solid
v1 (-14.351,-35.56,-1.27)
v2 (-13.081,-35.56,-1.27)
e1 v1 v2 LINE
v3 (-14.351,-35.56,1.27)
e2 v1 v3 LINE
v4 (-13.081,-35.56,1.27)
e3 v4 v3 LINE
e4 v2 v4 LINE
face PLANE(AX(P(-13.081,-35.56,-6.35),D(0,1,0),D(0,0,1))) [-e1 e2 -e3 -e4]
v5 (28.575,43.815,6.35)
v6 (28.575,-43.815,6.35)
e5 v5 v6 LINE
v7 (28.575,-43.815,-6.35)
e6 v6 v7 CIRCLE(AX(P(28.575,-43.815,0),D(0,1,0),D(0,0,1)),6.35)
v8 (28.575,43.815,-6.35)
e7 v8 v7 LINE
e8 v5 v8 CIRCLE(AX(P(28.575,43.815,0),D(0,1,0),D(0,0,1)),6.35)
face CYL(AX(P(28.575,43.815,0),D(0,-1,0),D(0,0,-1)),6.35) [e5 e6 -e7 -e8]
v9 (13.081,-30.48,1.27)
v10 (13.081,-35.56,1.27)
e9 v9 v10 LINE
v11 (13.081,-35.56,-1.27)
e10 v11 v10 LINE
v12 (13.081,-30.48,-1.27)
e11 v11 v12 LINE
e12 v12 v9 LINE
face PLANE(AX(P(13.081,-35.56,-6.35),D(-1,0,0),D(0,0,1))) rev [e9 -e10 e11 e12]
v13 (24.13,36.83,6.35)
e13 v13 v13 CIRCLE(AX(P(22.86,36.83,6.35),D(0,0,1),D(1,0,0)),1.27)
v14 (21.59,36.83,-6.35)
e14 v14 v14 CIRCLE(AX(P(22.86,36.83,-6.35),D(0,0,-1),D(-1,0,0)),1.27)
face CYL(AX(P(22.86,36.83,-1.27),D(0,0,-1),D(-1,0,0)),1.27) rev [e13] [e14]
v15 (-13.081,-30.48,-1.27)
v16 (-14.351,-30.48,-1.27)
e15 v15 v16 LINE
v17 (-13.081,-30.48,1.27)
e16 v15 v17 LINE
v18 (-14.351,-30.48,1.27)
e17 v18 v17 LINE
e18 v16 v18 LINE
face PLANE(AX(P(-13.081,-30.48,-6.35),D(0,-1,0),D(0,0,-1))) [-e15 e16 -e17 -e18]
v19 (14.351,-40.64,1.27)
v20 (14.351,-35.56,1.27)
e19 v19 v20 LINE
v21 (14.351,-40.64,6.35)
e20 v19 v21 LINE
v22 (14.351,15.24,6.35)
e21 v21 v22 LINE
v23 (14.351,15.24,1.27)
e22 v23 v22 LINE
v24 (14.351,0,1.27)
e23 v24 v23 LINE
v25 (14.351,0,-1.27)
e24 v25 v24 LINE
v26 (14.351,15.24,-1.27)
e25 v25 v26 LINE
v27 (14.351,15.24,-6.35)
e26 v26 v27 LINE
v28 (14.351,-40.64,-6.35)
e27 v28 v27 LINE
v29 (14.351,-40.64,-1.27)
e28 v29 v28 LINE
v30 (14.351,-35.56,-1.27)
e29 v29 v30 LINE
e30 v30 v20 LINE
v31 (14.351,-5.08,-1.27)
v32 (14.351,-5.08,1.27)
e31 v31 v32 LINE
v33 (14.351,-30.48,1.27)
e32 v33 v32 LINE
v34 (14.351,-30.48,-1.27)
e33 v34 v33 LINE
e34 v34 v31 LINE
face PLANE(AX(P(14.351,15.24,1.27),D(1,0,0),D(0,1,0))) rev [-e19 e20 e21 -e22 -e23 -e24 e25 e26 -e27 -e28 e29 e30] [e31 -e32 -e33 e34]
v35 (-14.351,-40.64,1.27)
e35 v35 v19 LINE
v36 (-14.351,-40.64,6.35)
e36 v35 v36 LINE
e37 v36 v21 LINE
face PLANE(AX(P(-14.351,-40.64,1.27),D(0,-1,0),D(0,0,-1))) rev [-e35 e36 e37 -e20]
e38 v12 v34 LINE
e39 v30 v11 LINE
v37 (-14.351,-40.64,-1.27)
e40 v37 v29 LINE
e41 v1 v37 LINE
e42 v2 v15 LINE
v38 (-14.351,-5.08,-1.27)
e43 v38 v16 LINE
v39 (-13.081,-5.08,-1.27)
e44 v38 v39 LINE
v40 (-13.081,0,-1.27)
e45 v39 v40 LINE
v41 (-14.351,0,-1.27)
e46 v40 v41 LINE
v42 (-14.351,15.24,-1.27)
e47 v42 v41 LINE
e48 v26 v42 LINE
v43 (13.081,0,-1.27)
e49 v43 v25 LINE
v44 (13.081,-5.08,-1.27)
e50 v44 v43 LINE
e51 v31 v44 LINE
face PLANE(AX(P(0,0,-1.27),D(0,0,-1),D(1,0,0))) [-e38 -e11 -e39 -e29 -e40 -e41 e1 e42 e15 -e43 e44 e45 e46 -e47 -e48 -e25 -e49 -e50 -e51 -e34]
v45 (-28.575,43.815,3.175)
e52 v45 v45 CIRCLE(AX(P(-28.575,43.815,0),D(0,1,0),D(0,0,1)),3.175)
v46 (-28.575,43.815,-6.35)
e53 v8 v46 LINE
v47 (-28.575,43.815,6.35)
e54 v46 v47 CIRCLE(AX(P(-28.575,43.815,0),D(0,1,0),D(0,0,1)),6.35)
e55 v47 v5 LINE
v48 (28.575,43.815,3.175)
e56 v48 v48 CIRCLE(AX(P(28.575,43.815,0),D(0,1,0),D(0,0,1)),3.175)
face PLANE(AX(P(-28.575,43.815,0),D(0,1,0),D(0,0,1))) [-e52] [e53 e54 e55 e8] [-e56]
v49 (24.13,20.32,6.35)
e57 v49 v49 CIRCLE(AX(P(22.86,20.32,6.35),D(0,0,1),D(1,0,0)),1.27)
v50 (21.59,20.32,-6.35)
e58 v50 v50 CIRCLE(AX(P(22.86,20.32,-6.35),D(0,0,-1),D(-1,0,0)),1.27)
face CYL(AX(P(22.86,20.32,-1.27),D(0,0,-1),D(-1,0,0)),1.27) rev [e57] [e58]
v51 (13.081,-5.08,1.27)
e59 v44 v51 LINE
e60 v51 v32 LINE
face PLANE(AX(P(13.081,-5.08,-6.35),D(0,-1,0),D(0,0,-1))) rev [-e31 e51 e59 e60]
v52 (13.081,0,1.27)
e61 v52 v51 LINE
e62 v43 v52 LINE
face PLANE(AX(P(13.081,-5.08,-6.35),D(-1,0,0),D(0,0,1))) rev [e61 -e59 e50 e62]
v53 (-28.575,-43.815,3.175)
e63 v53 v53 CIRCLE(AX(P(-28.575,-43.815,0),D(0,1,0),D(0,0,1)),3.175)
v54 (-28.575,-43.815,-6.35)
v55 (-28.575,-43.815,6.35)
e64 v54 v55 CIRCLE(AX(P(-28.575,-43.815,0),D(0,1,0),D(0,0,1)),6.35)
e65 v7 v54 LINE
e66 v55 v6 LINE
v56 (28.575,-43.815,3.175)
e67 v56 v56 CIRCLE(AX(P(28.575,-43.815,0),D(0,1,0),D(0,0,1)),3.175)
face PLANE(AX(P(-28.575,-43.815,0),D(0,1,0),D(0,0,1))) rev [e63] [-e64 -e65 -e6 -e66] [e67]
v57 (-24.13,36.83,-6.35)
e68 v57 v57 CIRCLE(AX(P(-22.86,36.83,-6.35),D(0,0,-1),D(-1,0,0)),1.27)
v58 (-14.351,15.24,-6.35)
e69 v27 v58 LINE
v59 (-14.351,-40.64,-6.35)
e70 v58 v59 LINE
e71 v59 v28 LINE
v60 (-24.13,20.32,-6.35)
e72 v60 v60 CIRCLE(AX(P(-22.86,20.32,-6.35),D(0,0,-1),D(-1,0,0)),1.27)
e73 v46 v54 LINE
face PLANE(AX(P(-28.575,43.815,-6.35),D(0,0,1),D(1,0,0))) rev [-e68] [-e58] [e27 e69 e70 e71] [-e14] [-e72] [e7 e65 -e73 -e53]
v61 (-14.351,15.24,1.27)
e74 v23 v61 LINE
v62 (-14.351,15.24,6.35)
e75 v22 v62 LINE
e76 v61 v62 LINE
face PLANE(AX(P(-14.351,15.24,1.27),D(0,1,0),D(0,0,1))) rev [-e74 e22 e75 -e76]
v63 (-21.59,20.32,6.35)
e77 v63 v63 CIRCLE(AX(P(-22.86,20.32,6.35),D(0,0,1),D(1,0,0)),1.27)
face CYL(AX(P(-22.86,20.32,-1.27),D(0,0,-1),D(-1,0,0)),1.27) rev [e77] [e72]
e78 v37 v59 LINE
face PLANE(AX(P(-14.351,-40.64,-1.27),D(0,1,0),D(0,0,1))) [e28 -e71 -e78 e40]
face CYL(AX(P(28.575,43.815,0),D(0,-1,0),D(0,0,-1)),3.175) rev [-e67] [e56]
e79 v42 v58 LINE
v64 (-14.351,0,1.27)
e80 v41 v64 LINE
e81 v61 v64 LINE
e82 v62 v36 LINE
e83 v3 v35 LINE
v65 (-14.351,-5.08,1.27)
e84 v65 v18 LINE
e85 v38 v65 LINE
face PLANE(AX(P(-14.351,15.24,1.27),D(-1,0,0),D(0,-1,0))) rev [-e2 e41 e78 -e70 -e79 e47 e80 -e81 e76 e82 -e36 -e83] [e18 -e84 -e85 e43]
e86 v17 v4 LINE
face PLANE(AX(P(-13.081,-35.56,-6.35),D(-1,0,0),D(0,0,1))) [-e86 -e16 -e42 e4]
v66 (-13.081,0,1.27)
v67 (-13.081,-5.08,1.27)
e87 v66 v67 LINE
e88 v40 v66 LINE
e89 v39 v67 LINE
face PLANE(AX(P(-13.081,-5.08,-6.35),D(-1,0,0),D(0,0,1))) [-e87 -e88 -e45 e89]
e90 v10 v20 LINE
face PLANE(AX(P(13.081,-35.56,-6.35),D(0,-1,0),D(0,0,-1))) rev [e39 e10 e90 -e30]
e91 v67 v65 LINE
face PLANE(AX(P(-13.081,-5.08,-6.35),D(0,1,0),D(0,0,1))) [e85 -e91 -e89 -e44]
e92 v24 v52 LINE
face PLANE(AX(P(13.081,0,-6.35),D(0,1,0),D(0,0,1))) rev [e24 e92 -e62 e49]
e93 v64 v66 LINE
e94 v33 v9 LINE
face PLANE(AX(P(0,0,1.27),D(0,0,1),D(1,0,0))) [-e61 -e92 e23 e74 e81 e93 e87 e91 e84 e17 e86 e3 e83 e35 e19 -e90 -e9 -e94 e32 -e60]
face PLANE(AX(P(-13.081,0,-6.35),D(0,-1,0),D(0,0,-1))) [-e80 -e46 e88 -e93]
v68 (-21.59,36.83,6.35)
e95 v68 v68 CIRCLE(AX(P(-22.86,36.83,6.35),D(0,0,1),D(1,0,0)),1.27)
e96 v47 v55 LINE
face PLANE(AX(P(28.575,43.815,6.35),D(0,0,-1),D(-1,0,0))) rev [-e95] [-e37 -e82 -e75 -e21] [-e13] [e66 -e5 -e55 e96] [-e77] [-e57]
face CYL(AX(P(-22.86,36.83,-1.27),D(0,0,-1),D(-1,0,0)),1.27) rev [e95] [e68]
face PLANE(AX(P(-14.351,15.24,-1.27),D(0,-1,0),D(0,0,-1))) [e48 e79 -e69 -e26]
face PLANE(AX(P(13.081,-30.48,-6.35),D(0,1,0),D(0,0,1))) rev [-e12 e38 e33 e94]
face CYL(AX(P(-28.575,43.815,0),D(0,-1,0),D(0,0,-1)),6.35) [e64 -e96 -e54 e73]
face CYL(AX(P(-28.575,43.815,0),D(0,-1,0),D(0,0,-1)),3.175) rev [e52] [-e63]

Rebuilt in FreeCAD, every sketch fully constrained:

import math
import FreeCAD as App
import Part
import Sketcher

V = App.Vector
Q = App.Units.Quantity


def add_polygon(sketch, points):
    """Adds a closed chain of lines whose ends are joined by coincident constraints."""
    first, n = sketch.GeometryCount, len(points)
    for a, b in zip(points, points[1:] + points[:1]):
        sketch.addGeometry(Part.LineSegment(App.Vector(*a, 0), App.Vector(*b, 0)), False)
    for i in range(n):
        sketch.addConstraint(Sketcher.Constraint("Coincident", first + i, 2, first + (i + 1) % n, 1))

doc = App.newDocument("Part")
body = doc.addObject("PartDesign::Body", "Body")

# Sketch on XZ plane
sketch1 = doc.addObject("Sketcher::SketchObject", "Sketch")
body.addObject(sketch1)
sketch1.AttachmentSupport = (doc.XZ_Plane, [""])
sketch1.MapMode = "FlatFace"
sketch1.addGeometry([
    Part.LineSegment(V(28.6, -6.3, 0), V(-28.6, -6.3, 0)),  # 0
    Part.ArcOfCircle(Part.Circle(V(-28.6, 0, 0), V(0, 0, 1), 6.3), math.radians(90), math.radians(270)),  # 1
    Part.LineSegment(V(-28.6, 6.3, 0), V(28.6, 6.3, 0)),  # 2
    Part.ArcOfCircle(Part.Circle(V(28.6, 0, 0), V(0, 0, 1), 6.3), math.radians(-90), math.radians(90)),  # 3
    Part.Circle(V(28.6, 0, 0), V(0, 0, 1), 3.2),  # 4
    Part.Circle(V(-28.6, 0, 0), V(0, 0, 1), 3.2),  # 5
], False)
sketch1.addConstraint([
    Sketcher.Constraint("Tangent", 0, 2, 1, 2),
    Sketcher.Constraint("Tangent", 1, 1, 2, 1),
    Sketcher.Constraint("Tangent", 2, 2, 3, 2),
    Sketcher.Constraint("Tangent", 3, 1, 0, 1),
    Sketcher.Constraint("Horizontal", 0),
    Sketcher.Constraint("Horizontal", 2),
    Sketcher.Constraint("Coincident", 4, 3, 3, 3),
    Sketcher.Constraint("Coincident", 5, 3, 1, 3),
    Sketcher.Constraint("Equal", 4, 5),
    Sketcher.Constraint("Symmetric", 1, 3, 3, 3, -1, 1),
    Sketcher.Constraint("Diameter", 4, Q("0.25 in")),
    Sketcher.Constraint("Radius", 1, Q("0.25 in")),
    Sketcher.Constraint("DistanceX", 0, 2, 0, 1, Q("2.25 in")),
])
pad1 = doc.addObject("PartDesign::Pad", "Pad")
body.addObject(pad1)
pad1.Profile = sketch1
pad1.Length = Q("3.45 in")
pad1.Midplane = True

# Sketch on XY plane
sketch2 = doc.addObject("Sketcher::SketchObject", "Sketch001")
body.addObject(sketch2)
sketch2.AttachmentSupport = (doc.XY_Plane, [""])
sketch2.MapMode = "FlatFace"
sketch2.AttachmentOffset = App.Placement(V(0, 0, -0.25 * 25.4), App.Rotation())
sketch2.addGeometry([
    Part.Circle(V(-22.9, 36.8, 0), V(0, 0, 1), 1.3),
    Part.Circle(V(-22.9, 20.3, 0), V(0, 0, 1), 1.3),
    Part.Circle(V(22.9, 36.8, 0), V(0, 0, 1), 1.3),
    Part.Circle(V(22.9, 20.3, 0), V(0, 0, 1), 1.3),
], False)
sketch2.addConstraint([
    Sketcher.Constraint("Equal", 0, 1),
    Sketcher.Constraint("Equal", 1, 2),
    Sketcher.Constraint("Equal", 2, 3),
    Sketcher.Constraint("Symmetric", 0, 3, 2, 3, -2),
    Sketcher.Constraint("Symmetric", 1, 3, 3, 3, -2),
    Sketcher.Constraint("Vertical", 0, 3, 1, 3),
    Sketcher.Constraint("Diameter", 0, Q("0.1 in")),
    Sketcher.Constraint("DistanceX", 0, 3, -1, 1, Q("0.9 in")),
    Sketcher.Constraint("DistanceY", -1, 1, 1, 3, Q("0.8 in")),
    Sketcher.Constraint("DistanceY", -1, 1, 0, 3, Q("1.45 in")),
])
pocket1 = doc.addObject("PartDesign::Pocket", "Pocket")
body.addObject(pocket1)
pocket1.Profile = sketch2
pocket1.Length = Q("0.2 in")
pocket1.Reversed = True

# Sketch on XY plane
sketch3 = doc.addObject("Sketcher::SketchObject", "Sketch002")
body.addObject(sketch3)
sketch3.AttachmentSupport = (doc.XY_Plane, [""])
sketch3.MapMode = "FlatFace"
sketch3.AttachmentOffset = App.Placement(V(0, 0, 0.25 * 25.4), App.Rotation())
sketch3.addGeometry([
    Part.Circle(V(22.9, 36.8, 0), V(0, 0, 1), 1.3),
    Part.Circle(V(22.9, 20.3, 0), V(0, 0, 1), 1.3),
    Part.Circle(V(-22.9, 36.8, 0), V(0, 0, 1), 1.3),
    Part.Circle(V(-22.9, 20.3, 0), V(0, 0, 1), 1.3),
], False)
sketch3.addConstraint([
    Sketcher.Constraint("Equal", 0, 1),
    Sketcher.Constraint("Equal", 1, 2),
    Sketcher.Constraint("Equal", 2, 3),
    Sketcher.Constraint("Symmetric", 0, 3, 2, 3, -2),
    Sketcher.Constraint("Symmetric", 1, 3, 3, 3, -2),
    Sketcher.Constraint("Vertical", 0, 3, 1, 3),
    Sketcher.Constraint("Diameter", 0, Q("0.1 in")),
    Sketcher.Constraint("DistanceX", -1, 1, 0, 3, Q("0.9 in")),
    Sketcher.Constraint("DistanceY", -1, 1, 1, 3, Q("0.8 in")),
    Sketcher.Constraint("DistanceY", -1, 1, 0, 3, Q("1.45 in")),
])
pocket2 = doc.addObject("PartDesign::Pocket", "Pocket001")
body.addObject(pocket2)
pocket2.Profile = sketch3
pocket2.Type = "ThroughAll"

# Sketch on XY plane
sketch4 = doc.addObject("Sketcher::SketchObject", "Sketch003")
body.addObject(sketch4)
sketch4.AttachmentSupport = (doc.XY_Plane, [""])
sketch4.MapMode = "FlatFace"
sketch4.AttachmentOffset = App.Placement(V(0, 0, 0.25 * 25.4), App.Rotation())
add_polygon(sketch4, [(-14, 15), (-14, -41), (14, -41), (14, 15)])  # lines 0-3
sketch4.addConstraint([
    Sketcher.Constraint("Vertical", 0),
    Sketcher.Constraint("Horizontal", 1),
    Sketcher.Constraint("Vertical", 2),
    Sketcher.Constraint("Horizontal", 3),
    Sketcher.Constraint("DistanceY", 0, 2, 0, 1, Q("2.2 in")),
    Sketcher.Constraint("DistanceX", 1, 1, 1, 2, Q("1.13 in")),
    Sketcher.Constraint("DistanceY", 0, 2, -1, 1, Q("1.6 in")),
    Sketcher.Constraint("DistanceX", 0, 2, -1, 1, Q("0.565 in")),
])
pocket3 = doc.addObject("PartDesign::Pocket", "Pocket002")
body.addObject(pocket3)
pocket3.Profile = sketch4
pocket3.Length = Q("0.2 in")
doc.recompute()

mirrored = doc.addObject("PartDesign::Mirrored", "Mirrored")
body.addObject(mirrored)
mirrored.Originals = [pocket3]
mirrored.MirrorPlane = (doc.XY_Plane, [""])
body.Tip = mirrored

# Sketch on XY plane
sketch5 = doc.addObject("Sketcher::SketchObject", "Sketch004")
body.addObject(sketch5)
sketch5.AttachmentSupport = (doc.XY_Plane, [""])
sketch5.MapMode = "FlatFace"
sketch5.AttachmentOffset = App.Placement(V(0, 0, 0.05 * 25.4), App.Rotation())
add_polygon(sketch5, [(13.1, -30.5), (13.1, -35.6), (14.4, -35.6), (14.4, -30.5)])  # lines 0-3
add_polygon(sketch5, [(13.1, 0), (13.1, -5.1), (14.4, -5.1), (14.4, 0)])  # lines 4-7
sketch5.addConstraint([
    Sketcher.Constraint("Vertical", 0),
    Sketcher.Constraint("Horizontal", 1),
    Sketcher.Constraint("Vertical", 2),
    Sketcher.Constraint("Horizontal", 3),
    Sketcher.Constraint("Vertical", 4),
    Sketcher.Constraint("Horizontal", 5),
    Sketcher.Constraint("Vertical", 6),
    Sketcher.Constraint("Horizontal", 7),
    Sketcher.Constraint("PointOnObject", 6, 2, -1),
    Sketcher.Constraint("Vertical", 3, 2, 4, 2),
    Sketcher.Constraint("Vertical", 2, 2, 5, 2),
    Sketcher.Constraint("Equal", 2, 4),
    Sketcher.Constraint("DistanceY", 0, 2, 0, 1, Q("0.2 in")),
    Sketcher.Constraint("DistanceY", 3, 2, 4, 2, Q("1 in")),
    Sketcher.Constraint("DistanceX", 1, 1, 1, 2, Q("0.05 in")),
    Sketcher.Constraint("DistanceX", -1, 1, 0, 2, Q("0.515 in")),
])
pocket4 = doc.addObject("PartDesign::Pocket", "Pocket003")
body.addObject(pocket4)
pocket4.Profile = sketch5
pocket4.Type = "ThroughAll"
doc.recompute()

mirrored2 = doc.addObject("PartDesign::Mirrored", "Mirrored001")
body.addObject(mirrored2)
mirrored2.Originals = [pocket4]
mirrored2.MirrorPlane = (doc.YZ_Plane, [""])
body.Tip = mirrored2

doc.recompute()
